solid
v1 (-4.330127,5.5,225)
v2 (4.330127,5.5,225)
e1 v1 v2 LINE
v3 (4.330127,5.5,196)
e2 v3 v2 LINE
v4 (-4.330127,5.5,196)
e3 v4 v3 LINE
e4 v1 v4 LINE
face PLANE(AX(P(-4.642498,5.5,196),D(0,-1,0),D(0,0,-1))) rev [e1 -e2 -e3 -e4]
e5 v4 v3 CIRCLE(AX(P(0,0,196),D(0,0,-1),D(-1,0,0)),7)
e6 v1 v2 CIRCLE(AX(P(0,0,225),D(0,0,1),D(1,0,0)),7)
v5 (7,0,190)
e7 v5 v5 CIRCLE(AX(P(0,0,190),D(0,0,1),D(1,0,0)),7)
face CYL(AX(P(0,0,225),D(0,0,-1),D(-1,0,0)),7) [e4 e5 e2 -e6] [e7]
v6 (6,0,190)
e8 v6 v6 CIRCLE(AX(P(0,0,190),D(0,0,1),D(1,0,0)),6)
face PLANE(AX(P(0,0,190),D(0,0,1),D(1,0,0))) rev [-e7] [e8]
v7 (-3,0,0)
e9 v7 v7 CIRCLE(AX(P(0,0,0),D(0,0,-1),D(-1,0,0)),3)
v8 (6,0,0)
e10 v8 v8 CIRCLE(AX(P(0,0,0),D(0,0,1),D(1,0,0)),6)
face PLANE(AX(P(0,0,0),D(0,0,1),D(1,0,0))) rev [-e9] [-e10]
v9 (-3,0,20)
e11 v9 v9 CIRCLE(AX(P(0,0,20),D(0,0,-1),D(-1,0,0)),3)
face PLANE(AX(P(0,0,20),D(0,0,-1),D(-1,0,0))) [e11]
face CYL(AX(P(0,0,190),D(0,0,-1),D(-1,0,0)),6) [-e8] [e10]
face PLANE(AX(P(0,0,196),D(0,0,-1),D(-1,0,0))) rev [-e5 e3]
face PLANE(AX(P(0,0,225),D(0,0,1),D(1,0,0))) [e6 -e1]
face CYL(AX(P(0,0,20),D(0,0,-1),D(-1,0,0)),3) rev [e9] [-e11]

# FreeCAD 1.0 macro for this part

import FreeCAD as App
import Part
import Sketcher
Q = App.Units.Quantity

doc = App.newDocument("Part")
body = doc.addObject("PartDesign::Body", "Body")

# Sketch on XY plane
sketch1 = body.newObject("Sketcher::SketchObject", "Sketch")
sketch1.AttachmentSupport = (doc.getObject("XY_Plane"), [""])
sketch1.MapMode = "FlatFace"
sketch1.addGeometry(Part.Circle(App.Vector(0, 0, 0), App.Vector(0, 0, 1), 6), False)
sketch1.addConstraint(Sketcher.Constraint("Coincident", 0, 3, -1, 1))
sketch1.addConstraint(Sketcher.Constraint("Diameter", 0, Q("12 mm")))
pad1 = body.newObject("PartDesign::Pad", "Pad")
pad1.Profile = sketch1
pad1.Length = 190

# Sketch on XY plane
sketch2 = body.newObject("Sketcher::SketchObject", "Sketch001")
sketch2.AttachmentSupport = (doc.getObject("XY_Plane"), [""])
sketch2.MapMode = "FlatFace"
sketch2.AttachmentOffset = App.Placement(App.Vector(0, 0, 190), App.Rotation())
sketch2.addGeometry(Part.Circle(App.Vector(0, 0, 0), App.Vector(0, 0, 1), 7), False)
sketch2.addConstraint(Sketcher.Constraint("Coincident", 0, 3, -1, 1))
sketch2.addConstraint(Sketcher.Constraint("Diameter", 0, Q("14 mm")))
pad2 = body.newObject("PartDesign::Pad", "Pad001")
pad2.Profile = sketch2
pad2.Length = 35

# Sketch on XY plane
sketch3 = body.newObject("Sketcher::SketchObject", "Sketch002")
sketch3.AttachmentSupport = (doc.getObject("XY_Plane"), [""])
sketch3.MapMode = "FlatFace"
sketch3.addGeometry(Part.Circle(App.Vector(0, 0, 0), App.Vector(0, 0, 1), 3), False)
sketch3.addConstraint(Sketcher.Constraint("Coincident", 0, 3, -1, 1))
sketch3.addConstraint(Sketcher.Constraint("Diameter", 0, Q("6 mm")))
pocket1 = body.newObject("PartDesign::Pocket", "Pocket")
pocket1.Profile = sketch3
pocket1.Length = 20
pocket1.Reversed = True

# Sketch on XY plane
sketch4 = body.newObject("Sketcher::SketchObject", "Sketch003")
sketch4.AttachmentSupport = (doc.getObject("XY_Plane"), [""])
sketch4.MapMode = "FlatFace"
sketch4.AttachmentOffset = App.Placement(App.Vector(0, 0, 225), App.Rotation())
sketch4.addGeometry(Part.LineSegment(App.Vector(-5, 10, 0), App.Vector(-5, 6, 0)), False)
sketch4.addGeometry(Part.LineSegment(App.Vector(-5, 6, 0), App.Vector(5, 6, 0)), False)
sketch4.addGeometry(Part.LineSegment(App.Vector(5, 6, 0), App.Vector(5, 10, 0)), False)
sketch4.addGeometry(Part.LineSegment(App.Vector(5, 10, 0), App.Vector(-5, 10, 0)), False)
sketch4.addConstraint(Sketcher.Constraint("Coincident", 0, 2, 1, 1))
sketch4.addConstraint(Sketcher.Constraint("Coincident", 1, 2, 2, 1))
sketch4.addConstraint(Sketcher.Constraint("Coincident", 2, 2, 3, 1))
sketch4.addConstraint(Sketcher.Constraint("Coincident", 3, 2, 0, 1))
sketch4.addConstraint(Sketcher.Constraint("Vertical", 0))
sketch4.addConstraint(Sketcher.Constraint("Horizontal", 1))
sketch4.addConstraint(Sketcher.Constraint("Vertical", 2))
sketch4.addConstraint(Sketcher.Constraint("Horizontal", 3))
sketch4.addConstraint(Sketcher.Constraint("DistanceY", 0, 2, 0, 1, Q("5 mm")))
sketch4.addConstraint(Sketcher.Constraint("DistanceY", -1, 1, 0, 2, Q("5.5 mm")))
sketch4.addConstraint(Sketcher.Constraint("DistanceX", 1, 1, 1, 2, Q("10.04838 mm")))
sketch4.addConstraint(Sketcher.Constraint("DistanceX", 0, 2, -1, 1, Q("4.642498 mm")))
pocket2 = body.newObject("PartDesign::Pocket", "Pocket001")
pocket2.Profile = sketch4
pocket2.Length = 29

doc.recompute()
